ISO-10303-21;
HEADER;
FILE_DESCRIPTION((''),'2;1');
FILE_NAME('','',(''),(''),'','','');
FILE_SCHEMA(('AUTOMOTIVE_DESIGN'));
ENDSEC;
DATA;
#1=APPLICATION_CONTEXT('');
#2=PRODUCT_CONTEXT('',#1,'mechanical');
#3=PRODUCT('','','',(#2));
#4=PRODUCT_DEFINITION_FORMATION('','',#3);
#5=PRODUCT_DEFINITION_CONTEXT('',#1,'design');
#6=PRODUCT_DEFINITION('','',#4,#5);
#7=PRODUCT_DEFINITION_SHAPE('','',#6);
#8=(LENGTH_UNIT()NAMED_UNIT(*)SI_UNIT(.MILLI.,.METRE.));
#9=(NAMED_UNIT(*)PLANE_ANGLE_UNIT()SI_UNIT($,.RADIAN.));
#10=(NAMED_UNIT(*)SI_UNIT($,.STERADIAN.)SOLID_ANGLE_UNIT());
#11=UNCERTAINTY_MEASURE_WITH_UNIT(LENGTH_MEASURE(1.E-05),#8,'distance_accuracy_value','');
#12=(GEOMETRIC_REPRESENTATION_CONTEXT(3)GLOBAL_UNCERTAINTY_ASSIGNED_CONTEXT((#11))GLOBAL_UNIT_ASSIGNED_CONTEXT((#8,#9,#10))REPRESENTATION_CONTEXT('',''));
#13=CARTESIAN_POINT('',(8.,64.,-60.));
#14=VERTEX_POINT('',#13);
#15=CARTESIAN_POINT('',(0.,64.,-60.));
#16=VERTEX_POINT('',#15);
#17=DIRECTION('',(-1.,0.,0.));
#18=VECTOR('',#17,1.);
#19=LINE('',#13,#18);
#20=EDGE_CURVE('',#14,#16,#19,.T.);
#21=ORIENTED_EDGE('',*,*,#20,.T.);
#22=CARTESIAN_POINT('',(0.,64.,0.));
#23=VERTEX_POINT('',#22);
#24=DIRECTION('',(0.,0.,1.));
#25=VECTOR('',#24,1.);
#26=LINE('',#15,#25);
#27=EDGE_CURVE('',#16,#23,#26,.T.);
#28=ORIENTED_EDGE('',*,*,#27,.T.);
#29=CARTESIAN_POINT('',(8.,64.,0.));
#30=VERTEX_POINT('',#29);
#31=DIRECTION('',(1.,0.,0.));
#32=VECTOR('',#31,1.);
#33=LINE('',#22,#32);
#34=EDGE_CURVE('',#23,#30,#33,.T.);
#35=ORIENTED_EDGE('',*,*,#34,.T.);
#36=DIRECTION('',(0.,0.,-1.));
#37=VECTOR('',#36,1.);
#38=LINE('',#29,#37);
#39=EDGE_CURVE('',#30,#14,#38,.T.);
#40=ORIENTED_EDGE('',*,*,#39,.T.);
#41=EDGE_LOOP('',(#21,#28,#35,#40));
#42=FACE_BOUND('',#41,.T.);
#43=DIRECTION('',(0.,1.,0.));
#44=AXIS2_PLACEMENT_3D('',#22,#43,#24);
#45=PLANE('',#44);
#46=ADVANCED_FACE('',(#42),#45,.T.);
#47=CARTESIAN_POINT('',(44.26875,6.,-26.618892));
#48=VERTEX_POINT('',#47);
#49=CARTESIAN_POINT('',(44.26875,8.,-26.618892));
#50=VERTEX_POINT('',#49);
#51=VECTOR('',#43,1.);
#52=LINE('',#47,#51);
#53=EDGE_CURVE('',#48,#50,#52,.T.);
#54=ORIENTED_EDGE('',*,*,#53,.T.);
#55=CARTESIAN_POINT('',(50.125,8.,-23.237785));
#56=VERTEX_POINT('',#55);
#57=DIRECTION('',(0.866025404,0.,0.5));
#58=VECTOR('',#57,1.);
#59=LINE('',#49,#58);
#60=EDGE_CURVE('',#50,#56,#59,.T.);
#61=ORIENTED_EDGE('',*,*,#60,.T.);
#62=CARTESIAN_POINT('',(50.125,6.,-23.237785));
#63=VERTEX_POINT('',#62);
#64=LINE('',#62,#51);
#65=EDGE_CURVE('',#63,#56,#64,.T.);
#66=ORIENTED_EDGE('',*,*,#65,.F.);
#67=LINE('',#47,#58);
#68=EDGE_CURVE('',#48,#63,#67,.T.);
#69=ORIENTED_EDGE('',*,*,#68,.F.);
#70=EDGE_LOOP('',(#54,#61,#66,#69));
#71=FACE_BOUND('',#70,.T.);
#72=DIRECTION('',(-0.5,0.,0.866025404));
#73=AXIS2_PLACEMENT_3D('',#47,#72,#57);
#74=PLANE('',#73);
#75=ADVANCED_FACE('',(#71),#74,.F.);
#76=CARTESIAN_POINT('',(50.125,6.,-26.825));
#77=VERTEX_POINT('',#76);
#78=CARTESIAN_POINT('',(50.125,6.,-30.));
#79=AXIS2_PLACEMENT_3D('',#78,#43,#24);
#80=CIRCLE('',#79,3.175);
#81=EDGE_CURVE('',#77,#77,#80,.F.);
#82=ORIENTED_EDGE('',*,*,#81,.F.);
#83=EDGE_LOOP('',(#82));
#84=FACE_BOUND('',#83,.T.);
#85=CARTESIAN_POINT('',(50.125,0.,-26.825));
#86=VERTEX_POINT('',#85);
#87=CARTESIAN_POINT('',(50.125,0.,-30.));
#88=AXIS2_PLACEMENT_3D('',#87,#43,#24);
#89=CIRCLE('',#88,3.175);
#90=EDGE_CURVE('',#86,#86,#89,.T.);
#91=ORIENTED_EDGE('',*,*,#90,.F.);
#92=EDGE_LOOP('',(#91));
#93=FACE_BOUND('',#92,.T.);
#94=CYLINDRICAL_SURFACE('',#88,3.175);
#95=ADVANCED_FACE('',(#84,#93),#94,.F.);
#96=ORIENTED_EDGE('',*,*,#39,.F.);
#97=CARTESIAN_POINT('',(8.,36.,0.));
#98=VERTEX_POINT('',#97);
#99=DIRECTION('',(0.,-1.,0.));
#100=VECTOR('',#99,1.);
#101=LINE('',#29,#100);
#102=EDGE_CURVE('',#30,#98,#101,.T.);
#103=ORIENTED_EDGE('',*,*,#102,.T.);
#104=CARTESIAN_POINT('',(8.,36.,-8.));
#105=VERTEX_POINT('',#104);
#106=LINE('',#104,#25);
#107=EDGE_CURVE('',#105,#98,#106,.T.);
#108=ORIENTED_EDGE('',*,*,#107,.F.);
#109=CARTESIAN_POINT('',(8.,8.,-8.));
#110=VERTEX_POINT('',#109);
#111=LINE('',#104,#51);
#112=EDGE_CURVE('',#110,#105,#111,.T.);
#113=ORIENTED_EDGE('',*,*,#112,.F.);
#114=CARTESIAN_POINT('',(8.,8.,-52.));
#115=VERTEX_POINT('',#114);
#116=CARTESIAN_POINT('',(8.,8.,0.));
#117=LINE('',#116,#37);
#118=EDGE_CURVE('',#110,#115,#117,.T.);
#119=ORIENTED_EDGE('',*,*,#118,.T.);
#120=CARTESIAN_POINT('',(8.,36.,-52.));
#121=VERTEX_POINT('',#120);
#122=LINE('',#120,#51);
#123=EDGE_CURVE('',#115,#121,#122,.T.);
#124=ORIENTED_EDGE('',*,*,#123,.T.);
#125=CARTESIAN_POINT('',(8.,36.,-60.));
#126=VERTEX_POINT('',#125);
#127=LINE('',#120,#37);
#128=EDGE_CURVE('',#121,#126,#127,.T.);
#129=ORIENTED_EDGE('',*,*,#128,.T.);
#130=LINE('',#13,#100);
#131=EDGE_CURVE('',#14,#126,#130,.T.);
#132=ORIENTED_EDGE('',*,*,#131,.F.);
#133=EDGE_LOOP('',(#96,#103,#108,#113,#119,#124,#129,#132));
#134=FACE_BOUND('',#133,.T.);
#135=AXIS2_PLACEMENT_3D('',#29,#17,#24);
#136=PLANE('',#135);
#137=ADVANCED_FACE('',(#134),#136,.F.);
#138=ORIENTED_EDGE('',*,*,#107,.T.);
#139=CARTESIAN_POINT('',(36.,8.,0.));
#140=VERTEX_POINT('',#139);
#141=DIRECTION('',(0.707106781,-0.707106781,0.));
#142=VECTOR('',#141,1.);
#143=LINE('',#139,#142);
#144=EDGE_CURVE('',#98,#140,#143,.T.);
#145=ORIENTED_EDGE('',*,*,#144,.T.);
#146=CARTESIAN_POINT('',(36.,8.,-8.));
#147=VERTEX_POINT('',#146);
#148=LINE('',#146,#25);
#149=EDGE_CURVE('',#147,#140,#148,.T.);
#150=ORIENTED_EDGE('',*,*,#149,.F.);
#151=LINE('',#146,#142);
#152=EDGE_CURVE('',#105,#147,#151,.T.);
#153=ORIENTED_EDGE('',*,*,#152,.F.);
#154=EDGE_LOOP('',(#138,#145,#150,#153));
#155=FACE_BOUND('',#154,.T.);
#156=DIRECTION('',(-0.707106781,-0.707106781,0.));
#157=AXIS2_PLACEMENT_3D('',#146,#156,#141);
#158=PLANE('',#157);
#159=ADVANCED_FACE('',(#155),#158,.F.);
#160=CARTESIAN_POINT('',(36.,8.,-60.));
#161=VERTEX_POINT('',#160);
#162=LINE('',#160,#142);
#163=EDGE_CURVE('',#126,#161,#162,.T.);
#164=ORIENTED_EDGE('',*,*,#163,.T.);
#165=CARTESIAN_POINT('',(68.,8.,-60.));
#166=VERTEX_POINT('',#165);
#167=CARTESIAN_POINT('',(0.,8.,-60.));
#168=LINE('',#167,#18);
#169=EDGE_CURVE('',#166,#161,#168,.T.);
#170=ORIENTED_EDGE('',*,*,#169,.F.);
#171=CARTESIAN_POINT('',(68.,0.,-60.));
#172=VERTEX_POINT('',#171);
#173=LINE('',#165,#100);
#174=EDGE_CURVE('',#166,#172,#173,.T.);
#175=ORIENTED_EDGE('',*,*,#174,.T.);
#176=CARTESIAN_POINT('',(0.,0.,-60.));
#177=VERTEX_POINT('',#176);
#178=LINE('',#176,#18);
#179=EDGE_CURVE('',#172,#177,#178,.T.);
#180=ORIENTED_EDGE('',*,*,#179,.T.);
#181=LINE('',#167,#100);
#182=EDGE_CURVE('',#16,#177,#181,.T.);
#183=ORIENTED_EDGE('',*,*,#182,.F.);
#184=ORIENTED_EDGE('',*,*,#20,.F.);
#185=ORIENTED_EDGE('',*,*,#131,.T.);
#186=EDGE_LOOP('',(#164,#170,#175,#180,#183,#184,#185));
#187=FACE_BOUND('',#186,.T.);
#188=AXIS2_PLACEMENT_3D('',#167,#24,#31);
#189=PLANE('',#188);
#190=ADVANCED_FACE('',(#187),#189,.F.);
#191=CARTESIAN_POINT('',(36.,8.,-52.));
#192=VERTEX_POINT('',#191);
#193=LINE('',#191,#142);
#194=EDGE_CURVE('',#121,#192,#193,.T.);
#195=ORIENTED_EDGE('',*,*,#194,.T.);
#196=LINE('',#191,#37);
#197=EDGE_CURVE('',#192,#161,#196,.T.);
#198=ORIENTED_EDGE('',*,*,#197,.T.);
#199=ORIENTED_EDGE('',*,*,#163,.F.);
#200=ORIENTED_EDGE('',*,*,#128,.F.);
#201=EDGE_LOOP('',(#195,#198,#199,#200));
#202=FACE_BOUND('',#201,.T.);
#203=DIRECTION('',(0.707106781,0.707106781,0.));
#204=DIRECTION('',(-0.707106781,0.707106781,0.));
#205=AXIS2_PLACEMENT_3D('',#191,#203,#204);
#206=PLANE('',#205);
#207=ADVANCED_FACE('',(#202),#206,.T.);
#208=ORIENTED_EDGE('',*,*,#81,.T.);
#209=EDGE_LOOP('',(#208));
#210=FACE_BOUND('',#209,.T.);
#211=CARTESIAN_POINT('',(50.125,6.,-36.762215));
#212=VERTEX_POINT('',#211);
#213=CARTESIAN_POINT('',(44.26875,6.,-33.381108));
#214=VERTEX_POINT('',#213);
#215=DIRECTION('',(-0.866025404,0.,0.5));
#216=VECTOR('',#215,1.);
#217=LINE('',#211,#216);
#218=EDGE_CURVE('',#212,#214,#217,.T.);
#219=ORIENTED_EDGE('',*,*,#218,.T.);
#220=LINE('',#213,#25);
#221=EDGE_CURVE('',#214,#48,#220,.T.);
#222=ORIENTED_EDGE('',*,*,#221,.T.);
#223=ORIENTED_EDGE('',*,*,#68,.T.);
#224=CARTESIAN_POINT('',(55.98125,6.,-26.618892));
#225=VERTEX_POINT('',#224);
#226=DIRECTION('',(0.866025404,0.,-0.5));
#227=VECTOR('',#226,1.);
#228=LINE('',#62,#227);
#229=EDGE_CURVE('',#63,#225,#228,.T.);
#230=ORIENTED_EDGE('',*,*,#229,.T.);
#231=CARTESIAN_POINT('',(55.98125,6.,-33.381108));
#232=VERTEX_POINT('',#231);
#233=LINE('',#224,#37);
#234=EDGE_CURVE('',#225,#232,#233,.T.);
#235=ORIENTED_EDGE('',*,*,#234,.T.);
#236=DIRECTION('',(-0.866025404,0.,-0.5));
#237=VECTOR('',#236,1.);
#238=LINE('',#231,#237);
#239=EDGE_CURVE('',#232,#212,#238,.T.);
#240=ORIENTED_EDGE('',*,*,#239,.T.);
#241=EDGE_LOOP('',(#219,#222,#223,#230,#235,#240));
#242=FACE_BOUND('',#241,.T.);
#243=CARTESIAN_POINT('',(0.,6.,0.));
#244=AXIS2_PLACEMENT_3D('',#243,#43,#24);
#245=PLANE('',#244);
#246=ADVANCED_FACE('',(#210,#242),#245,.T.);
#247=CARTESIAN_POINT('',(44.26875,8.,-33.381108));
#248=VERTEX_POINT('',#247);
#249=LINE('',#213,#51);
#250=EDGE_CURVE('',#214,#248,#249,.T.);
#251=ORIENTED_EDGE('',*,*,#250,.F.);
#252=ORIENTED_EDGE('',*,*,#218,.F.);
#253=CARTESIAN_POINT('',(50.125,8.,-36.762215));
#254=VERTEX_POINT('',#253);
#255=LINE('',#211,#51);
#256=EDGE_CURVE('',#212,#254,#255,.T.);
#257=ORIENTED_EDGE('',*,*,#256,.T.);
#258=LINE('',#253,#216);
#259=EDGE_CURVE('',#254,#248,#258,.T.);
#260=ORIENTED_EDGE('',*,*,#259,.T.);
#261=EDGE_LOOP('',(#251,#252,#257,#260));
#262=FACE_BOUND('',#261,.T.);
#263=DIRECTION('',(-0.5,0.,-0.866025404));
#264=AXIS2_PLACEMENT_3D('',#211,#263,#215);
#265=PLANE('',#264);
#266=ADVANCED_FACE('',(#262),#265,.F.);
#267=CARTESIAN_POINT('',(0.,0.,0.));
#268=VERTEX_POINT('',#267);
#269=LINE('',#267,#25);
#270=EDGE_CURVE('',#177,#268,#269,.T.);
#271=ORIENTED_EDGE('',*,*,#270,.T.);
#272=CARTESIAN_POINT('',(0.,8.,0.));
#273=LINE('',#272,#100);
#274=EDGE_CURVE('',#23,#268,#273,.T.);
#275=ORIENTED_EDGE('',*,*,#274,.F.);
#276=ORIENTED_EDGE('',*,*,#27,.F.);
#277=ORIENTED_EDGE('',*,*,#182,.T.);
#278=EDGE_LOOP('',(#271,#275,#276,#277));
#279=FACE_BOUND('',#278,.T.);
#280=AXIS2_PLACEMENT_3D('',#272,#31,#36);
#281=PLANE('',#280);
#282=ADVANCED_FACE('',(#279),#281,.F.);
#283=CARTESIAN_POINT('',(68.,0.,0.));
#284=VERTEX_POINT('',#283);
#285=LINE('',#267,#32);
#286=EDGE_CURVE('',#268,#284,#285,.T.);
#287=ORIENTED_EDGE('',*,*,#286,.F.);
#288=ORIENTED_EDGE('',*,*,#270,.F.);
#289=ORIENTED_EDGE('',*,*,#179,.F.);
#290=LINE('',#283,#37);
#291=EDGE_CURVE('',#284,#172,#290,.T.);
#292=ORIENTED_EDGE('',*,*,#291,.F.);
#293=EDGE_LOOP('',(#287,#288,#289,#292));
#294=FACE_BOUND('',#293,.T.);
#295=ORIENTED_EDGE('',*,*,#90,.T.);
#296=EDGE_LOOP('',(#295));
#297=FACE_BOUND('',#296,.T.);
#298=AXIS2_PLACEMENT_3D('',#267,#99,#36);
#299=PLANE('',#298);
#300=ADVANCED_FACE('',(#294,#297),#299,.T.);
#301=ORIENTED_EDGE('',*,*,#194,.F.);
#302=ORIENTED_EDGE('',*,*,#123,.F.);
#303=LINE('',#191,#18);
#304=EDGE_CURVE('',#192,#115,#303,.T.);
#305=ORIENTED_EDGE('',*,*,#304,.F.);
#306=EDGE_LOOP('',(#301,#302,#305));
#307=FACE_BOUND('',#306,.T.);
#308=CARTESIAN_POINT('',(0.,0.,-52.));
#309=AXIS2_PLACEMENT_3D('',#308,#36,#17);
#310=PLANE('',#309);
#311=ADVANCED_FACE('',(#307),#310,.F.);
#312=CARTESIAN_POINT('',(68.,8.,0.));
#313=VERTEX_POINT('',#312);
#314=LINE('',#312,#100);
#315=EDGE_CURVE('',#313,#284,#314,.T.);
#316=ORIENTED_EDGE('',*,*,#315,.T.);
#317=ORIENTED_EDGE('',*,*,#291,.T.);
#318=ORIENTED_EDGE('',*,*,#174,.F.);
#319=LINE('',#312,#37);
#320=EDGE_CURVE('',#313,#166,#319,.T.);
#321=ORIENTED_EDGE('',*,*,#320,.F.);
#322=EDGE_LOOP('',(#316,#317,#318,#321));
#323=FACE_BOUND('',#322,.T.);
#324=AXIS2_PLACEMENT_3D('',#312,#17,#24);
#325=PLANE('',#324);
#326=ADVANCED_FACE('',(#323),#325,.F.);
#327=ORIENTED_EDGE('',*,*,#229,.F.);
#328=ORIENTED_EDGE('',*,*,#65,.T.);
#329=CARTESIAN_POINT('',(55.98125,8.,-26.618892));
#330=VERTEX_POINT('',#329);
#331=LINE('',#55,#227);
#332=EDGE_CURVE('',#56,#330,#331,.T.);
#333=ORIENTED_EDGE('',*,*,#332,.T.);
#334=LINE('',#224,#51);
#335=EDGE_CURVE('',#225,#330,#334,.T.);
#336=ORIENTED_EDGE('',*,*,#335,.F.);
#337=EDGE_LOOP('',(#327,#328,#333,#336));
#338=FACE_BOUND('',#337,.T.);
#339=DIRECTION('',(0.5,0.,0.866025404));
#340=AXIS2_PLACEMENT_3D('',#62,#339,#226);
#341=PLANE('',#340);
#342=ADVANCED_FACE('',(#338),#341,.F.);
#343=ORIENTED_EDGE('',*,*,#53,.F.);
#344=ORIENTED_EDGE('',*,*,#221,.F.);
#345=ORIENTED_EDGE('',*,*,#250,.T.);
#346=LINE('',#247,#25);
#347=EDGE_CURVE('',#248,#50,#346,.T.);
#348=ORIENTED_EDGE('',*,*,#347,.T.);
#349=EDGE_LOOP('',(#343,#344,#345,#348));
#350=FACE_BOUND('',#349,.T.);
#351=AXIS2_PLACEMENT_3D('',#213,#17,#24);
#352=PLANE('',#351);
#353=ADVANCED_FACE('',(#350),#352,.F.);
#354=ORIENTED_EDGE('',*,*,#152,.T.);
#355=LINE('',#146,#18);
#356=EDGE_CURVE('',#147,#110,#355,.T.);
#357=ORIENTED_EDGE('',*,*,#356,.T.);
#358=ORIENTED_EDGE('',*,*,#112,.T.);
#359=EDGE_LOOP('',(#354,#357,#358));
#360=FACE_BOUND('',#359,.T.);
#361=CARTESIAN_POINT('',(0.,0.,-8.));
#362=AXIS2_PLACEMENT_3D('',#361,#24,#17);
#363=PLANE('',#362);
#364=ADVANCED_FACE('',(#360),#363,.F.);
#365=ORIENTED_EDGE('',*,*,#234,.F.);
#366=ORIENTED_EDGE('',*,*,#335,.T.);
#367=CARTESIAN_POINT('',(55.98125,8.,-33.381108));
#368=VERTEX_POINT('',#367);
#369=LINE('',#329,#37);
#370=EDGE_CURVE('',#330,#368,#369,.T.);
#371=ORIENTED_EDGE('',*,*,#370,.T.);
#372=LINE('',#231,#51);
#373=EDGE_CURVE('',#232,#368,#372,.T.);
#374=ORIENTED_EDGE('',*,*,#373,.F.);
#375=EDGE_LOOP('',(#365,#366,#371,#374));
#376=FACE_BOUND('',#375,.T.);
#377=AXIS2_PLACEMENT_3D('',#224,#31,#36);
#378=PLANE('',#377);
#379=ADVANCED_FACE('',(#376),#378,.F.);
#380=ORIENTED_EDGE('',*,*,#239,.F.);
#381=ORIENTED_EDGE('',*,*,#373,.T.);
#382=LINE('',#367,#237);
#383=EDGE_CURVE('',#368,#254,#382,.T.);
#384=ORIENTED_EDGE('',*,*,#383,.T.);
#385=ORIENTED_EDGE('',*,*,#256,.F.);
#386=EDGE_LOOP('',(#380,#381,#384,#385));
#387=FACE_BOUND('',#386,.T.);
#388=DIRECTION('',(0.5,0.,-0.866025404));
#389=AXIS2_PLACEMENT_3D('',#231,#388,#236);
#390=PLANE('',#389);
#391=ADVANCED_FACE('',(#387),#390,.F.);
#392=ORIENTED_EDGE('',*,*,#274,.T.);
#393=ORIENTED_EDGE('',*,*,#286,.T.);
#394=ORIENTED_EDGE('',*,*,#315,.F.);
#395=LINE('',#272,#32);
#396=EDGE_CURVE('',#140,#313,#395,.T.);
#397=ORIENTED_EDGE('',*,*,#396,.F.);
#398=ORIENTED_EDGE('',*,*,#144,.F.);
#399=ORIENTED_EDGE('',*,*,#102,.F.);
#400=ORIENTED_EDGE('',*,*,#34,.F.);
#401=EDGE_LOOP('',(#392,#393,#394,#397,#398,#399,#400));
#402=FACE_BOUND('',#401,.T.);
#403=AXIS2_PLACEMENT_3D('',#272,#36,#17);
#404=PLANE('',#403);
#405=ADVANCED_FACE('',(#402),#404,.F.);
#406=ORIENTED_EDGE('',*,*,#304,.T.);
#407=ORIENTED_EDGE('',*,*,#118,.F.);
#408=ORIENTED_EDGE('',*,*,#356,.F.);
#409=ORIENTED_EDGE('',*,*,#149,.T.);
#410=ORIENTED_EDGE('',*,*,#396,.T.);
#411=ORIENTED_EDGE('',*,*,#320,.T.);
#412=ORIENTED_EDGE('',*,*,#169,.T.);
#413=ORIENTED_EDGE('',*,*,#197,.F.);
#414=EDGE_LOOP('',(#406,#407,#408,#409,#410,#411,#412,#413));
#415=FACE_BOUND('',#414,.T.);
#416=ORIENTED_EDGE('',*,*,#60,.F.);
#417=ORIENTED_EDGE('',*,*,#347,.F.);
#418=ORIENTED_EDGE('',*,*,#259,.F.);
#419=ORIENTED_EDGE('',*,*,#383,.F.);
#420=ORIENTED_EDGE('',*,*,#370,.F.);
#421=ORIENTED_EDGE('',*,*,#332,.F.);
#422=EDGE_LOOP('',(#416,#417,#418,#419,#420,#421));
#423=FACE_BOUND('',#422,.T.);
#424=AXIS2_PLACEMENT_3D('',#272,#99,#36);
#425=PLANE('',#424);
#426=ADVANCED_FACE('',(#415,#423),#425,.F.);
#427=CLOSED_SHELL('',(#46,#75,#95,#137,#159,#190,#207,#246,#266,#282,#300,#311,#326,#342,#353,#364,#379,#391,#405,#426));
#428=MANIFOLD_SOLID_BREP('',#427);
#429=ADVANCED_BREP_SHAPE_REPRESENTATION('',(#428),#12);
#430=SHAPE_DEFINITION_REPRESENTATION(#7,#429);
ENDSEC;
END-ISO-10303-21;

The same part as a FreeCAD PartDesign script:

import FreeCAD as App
import Part
import Sketcher

V = App.Vector
Q = App.Units.Quantity

doc = App.newDocument("Part")
body = doc.addObject("PartDesign::Body", "Body")

# Sketch on XZ plane
sketch1 = body.newObject("Sketcher::SketchObject", "Sketch")
sketch1.AttachmentSupport = (doc.getObject("XZ_Plane"), [""])
sketch1.MapMode = "FlatFace"
sketch1.addGeometry([
    Part.LineSegment(V(0, -60, 0), V(0, 0, 0)),
    Part.LineSegment(V(0, 0, 0), V(68, 0, 0)),
    Part.LineSegment(V(68, 0, 0), V(68, -60, 0)),
    Part.LineSegment(V(68, -60, 0), V(0, -60, 0)),
], False)
sketch1.addConstraint([
    Sketcher.Constraint("Coincident", 0, 2, 1, 1),
    Sketcher.Constraint("Coincident", 1, 2, 2, 1),
    Sketcher.Constraint("Coincident", 2, 2, 3, 1),
    Sketcher.Constraint("Coincident", 3, 2, 0, 1),
    Sketcher.Constraint("Vertical", 0),
    Sketcher.Constraint("Horizontal", 1),
    Sketcher.Constraint("Vertical", 2),
    Sketcher.Constraint("Horizontal", 3),
    Sketcher.Constraint("Coincident", 0, 2, -1, 1),
    Sketcher.Constraint("DistanceX", 1, 1, 1, 2, Q("68 mm")),
    Sketcher.Constraint("DistanceY", 0, 1, 0, 2, Q("60 mm")),
])
pad1 = body.newObject("PartDesign::Pad", "Pad")
pad1.Profile = sketch1
pad1.Length = 8
pad1.Reversed = True

# Sketch on XZ plane
sketch2 = body.newObject("Sketcher::SketchObject", "Sketch001")
sketch2.AttachmentSupport = (doc.getObject("XZ_Plane"), [""])
sketch2.MapMode = "FlatFace"
sketch2.AttachmentOffset = App.Placement(V(0, 0, -8), App.Rotation())
sketch2.addGeometry([
    Part.LineSegment(V(0, -60, 0), V(0, 0, 0)),
    Part.LineSegment(V(0, 0, 0), V(8, 0, 0)),
    Part.LineSegment(V(8, 0, 0), V(8, -60, 0)),
    Part.LineSegment(V(8, -60, 0), V(0, -60, 0)),
], False)
sketch2.addConstraint([
    Sketcher.Constraint("Coincident", 0, 2, 1, 1),
    Sketcher.Constraint("Coincident", 1, 2, 2, 1),
    Sketcher.Constraint("Coincident", 2, 2, 3, 1),
    Sketcher.Constraint("Coincident", 3, 2, 0, 1),
    Sketcher.Constraint("Vertical", 0),
    Sketcher.Constraint("Horizontal", 1),
    Sketcher.Constraint("Vertical", 2),
    Sketcher.Constraint("Horizontal", 3),
    Sketcher.Constraint("Coincident", 0, 2, -1, 1),
    Sketcher.Constraint("DistanceX", 1, 1, 1, 2, Q("8 mm")),
    Sketcher.Constraint("DistanceY", 0, 1, 0, 2, Q("60 mm")),
])
pad2 = body.newObject("PartDesign::Pad", "Pad001")
pad2.Profile = sketch2
pad2.Length = 56
pad2.Reversed = True

# Sketch on XZ plane
sketch3 = body.newObject("Sketcher::SketchObject", "Sketch002")
sketch3.AttachmentSupport = (doc.getObject("XZ_Plane"), [""])
sketch3.MapMode = "FlatFace"
sketch3.AttachmentOffset = App.Placement(V(0, 0, -8), App.Rotation())
sketch3.addGeometry(Part.Circle(V(50.125, -30, 0), V(0, 0, 1), 3.175), False)
sketch3.addConstraint([
    Sketcher.Constraint("Diameter", 0, Q("6.35 mm")),
    Sketcher.Constraint("DistanceY", 0, 3, -1, 1, Q("30 mm")),
    Sketcher.Constraint("DistanceX", -1, 1, 0, 3, Q("50.125 mm")),
])
pocket1 = body.newObject("PartDesign::Pocket", "Pocket")
pocket1.Profile = sketch3
pocket1.Length = 8
pocket1.Reversed = True

# Sketch on XZ plane
sketch4 = body.newObject("Sketcher::SketchObject", "Sketch003")
sketch4.AttachmentSupport = (doc.getObject("XZ_Plane"), [""])
sketch4.MapMode = "FlatFace"
sketch4.AttachmentOffset = App.Placement(V(0, 0, -8), App.Rotation())
sketch4.addGeometry([
    Part.LineSegment(V(44.26875, -26.618892, 0), V(50.125, -23.237785, 0)),  # 0
    Part.LineSegment(V(50.125, -23.237785, 0), V(55.98125, -26.618892, 0)),  # 1
    Part.LineSegment(V(55.98125, -26.618892, 0), V(55.98125, -33.381108, 0)),  # 2
    Part.LineSegment(V(55.98125, -33.381108, 0), V(50.125, -36.762215, 0)),  # 3
    Part.LineSegment(V(50.125, -36.762215, 0), V(44.26875, -33.381108, 0)),  # 4
    Part.LineSegment(V(44.26875, -33.381108, 0), V(44.26875, -26.618892, 0)),  # 5
], False)
sketch4.addConstraint([
    Sketcher.Constraint("Coincident", 0, 2, 1, 1),
    Sketcher.Constraint("Coincident", 1, 2, 2, 1),
    Sketcher.Constraint("Coincident", 2, 2, 3, 1),
    Sketcher.Constraint("Coincident", 3, 2, 4, 1),
    Sketcher.Constraint("Coincident", 4, 2, 5, 1),
    Sketcher.Constraint("Coincident", 5, 2, 0, 1),
    Sketcher.Constraint("Vertical", 2),
    Sketcher.Constraint("Vertical", 5),
    Sketcher.Constraint("Parallel", 0, 3),
    Sketcher.Constraint("Parallel", 1, 4),
    Sketcher.Constraint("Horizontal", 2, 2, 4, 2),
    Sketcher.Constraint("Horizontal", 1, 2, 5, 2),
    Sketcher.Constraint("Vertical", 0, 2, 3, 2),
    Sketcher.Constraint("Angle", 0, Q("30 deg")),
    Sketcher.Constraint("DistanceX", -1, 1, 0, 2, Q("50.125 mm")),
    Sketcher.Constraint("DistanceX", 4, 2, 2, 2, Q("11.7125 mm")),
    Sketcher.Constraint("DistanceY", 2, 2, 2, 1, Q("6.762215 mm")),
    Sketcher.Constraint("DistanceY", 0, 2, -1, 1, Q("23.237785 mm")),
])
pocket2 = body.newObject("PartDesign::Pocket", "Pocket001")
pocket2.Profile = sketch4
pocket2.Length = 2
pocket2.Reversed = True

# Sketch on XY plane
sketch5 = body.newObject("Sketcher::SketchObject", "Sketch004")
sketch5.AttachmentSupport = (doc.getObject("XY_Plane"), [""])
sketch5.MapMode = "FlatFace"
sketch5.AttachmentOffset = App.Placement(V(0, 0, -60), App.Rotation())
sketch5.addGeometry([
    Part.LineSegment(V(36, 8, 0), V(8, 8, 0)),
    Part.LineSegment(V(8, 8, 0), V(8, 36, 0)),
    Part.LineSegment(V(8, 36, 0), V(36, 8, 0)),
], False)
sketch5.addConstraint([
    Sketcher.Constraint("Coincident", 0, 2, 1, 1),
    Sketcher.Constraint("Coincident", 1, 2, 2, 1),
    Sketcher.Constraint("Coincident", 2, 2, 0, 1),
    Sketcher.Constraint("Horizontal", 0),
    Sketcher.Constraint("Vertical", 1),
    Sketcher.Constraint("Equal", 0, 1),
    Sketcher.Constraint("DistanceX", 0, 2, 0, 1, Q("28 mm")),
    Sketcher.Constraint("DistanceX", -1, 1, 0, 2, Q("8 mm")),
    Sketcher.Constraint("DistanceY", -1, 1, 0, 2, Q("8 mm")),
])
pad3 = body.newObject("PartDesign::Pad", "Pad002")
pad3.Profile = sketch5
pad3.Length = 8
doc.recompute()

datumplane = body.newObject("PartDesign::Plane", "DatumPlane")
datumplane.AttachmentSupport = (doc.getObject("XY_Plane"), [""])
datumplane.MapMode = "FlatFace"
datumplane.AttachmentOffset = App.Placement(V(0, 0, -30), App.Rotation())
mirrored = body.newObject("PartDesign::Mirrored", "Mirrored")
mirrored.Originals = [pad3]
mirrored.MirrorPlane = (datumplane, [""])
body.Tip = mirrored

doc.recompute()
